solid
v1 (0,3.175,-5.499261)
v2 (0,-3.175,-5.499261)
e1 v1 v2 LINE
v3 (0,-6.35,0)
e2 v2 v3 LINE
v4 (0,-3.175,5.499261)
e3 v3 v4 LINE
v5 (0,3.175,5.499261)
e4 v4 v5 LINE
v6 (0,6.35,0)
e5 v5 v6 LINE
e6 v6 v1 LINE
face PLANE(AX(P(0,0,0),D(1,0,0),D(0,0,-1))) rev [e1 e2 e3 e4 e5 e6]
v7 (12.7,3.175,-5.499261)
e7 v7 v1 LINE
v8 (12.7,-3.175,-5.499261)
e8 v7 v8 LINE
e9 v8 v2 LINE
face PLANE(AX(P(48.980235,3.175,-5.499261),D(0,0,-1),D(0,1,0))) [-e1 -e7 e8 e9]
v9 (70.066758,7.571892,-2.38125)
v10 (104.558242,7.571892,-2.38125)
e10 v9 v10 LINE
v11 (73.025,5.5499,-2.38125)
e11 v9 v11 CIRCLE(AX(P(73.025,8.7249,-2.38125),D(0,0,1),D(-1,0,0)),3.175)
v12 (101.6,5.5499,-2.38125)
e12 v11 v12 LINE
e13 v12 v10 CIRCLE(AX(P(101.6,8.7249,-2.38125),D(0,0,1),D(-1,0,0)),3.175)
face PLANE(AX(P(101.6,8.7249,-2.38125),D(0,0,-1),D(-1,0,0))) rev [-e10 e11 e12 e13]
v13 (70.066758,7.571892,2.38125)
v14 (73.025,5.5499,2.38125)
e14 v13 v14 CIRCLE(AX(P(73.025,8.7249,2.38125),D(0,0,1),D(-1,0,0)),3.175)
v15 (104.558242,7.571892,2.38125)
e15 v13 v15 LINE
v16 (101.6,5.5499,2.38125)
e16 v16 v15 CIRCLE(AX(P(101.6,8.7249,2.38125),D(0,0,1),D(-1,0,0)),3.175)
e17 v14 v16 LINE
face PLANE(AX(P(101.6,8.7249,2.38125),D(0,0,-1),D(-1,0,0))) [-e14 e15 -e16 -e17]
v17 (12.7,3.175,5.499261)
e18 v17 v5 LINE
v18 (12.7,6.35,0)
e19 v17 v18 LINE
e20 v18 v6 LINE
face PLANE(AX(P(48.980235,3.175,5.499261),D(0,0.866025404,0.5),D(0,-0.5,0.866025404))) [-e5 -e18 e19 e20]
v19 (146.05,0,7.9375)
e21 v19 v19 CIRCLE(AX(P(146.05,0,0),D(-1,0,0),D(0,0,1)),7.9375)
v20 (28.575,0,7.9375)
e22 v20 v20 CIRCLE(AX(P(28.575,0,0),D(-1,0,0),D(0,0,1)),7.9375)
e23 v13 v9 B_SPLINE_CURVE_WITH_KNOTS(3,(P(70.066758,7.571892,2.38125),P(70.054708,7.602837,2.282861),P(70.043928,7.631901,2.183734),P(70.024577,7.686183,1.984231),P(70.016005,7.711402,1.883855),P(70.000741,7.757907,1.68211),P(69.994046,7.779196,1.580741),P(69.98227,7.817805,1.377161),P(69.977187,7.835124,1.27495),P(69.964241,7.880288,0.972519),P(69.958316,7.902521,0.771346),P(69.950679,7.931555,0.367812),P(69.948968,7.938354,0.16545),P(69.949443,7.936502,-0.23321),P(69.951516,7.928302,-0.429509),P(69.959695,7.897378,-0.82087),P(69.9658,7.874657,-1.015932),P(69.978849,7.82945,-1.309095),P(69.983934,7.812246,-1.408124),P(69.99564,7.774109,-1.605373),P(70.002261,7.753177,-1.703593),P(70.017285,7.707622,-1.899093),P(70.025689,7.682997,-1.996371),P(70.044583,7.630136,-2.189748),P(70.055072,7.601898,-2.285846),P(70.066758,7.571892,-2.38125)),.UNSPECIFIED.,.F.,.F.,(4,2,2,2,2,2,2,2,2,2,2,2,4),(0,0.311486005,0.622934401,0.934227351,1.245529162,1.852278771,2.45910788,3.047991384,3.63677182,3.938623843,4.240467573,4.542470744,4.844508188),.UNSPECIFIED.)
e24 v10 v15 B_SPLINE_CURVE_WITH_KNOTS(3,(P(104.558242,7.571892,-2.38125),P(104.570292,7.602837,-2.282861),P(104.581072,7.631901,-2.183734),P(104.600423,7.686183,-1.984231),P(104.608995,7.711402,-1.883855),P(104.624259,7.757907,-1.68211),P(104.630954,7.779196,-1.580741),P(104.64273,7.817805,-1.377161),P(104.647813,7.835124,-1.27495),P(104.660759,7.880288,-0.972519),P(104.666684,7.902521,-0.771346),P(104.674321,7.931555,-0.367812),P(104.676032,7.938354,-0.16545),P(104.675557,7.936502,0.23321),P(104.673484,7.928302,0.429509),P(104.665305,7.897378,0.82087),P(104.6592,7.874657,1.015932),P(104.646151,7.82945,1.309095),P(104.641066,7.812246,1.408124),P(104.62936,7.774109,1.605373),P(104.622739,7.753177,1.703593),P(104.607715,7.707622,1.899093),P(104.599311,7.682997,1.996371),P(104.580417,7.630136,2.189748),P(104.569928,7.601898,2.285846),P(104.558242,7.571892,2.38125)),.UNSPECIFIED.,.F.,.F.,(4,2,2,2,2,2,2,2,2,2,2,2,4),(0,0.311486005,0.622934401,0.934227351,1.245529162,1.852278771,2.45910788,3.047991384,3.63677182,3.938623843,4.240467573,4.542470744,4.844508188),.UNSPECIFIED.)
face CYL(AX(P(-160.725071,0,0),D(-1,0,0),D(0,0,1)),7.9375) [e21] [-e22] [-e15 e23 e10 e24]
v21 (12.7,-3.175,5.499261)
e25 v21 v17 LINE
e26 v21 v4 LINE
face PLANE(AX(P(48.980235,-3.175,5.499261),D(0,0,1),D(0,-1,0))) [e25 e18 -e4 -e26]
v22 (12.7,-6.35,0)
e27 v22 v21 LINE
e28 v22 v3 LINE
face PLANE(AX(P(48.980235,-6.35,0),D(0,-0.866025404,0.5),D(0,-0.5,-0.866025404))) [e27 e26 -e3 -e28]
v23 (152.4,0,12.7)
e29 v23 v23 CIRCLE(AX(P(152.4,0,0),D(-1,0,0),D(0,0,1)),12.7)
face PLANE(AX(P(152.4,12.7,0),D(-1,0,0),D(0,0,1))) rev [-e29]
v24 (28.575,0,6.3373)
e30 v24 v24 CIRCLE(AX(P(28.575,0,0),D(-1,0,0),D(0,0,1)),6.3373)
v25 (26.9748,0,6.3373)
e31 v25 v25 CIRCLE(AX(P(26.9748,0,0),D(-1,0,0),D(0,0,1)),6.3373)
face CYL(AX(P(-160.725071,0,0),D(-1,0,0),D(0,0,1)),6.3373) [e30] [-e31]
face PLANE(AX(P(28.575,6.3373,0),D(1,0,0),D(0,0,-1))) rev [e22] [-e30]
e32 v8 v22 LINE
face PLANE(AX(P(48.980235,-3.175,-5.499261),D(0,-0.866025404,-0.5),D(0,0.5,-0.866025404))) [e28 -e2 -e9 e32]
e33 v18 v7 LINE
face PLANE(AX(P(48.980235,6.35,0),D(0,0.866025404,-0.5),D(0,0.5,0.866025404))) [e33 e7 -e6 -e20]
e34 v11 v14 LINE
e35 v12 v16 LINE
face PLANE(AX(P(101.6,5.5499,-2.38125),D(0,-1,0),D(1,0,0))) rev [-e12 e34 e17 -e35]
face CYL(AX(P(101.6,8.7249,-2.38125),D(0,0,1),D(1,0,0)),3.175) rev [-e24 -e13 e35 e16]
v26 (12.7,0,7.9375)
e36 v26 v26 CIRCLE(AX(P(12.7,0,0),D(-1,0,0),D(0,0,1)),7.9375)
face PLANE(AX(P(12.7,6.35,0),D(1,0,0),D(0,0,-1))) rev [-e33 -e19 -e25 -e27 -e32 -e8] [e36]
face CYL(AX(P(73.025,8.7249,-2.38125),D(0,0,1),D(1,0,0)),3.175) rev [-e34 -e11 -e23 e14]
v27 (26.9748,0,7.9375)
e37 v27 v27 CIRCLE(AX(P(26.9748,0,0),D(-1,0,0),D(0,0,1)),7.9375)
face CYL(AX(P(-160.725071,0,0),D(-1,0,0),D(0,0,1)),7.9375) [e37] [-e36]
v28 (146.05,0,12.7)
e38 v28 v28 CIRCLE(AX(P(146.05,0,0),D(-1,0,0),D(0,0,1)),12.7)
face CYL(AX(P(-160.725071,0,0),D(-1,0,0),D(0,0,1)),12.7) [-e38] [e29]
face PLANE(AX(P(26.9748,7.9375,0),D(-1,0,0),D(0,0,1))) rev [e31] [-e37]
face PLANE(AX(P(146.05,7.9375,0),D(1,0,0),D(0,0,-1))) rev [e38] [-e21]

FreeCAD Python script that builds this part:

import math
import FreeCAD as App
import Part
import Sketcher
Q = App.Units.Quantity

doc = App.newDocument("Part")
params = doc.addObject("Spreadsheet::Sheet", "Params")
for row, (alias, value) in enumerate([
    ("sketch1_width", "6 in"),
    ("sketch1_width2", "0.5 in"),
    ("sketch1_width3", "0.25 in"),
    ("sketch1_width4", "4.625 in"),
    ("sketch1_width5", "0.063 in"),
    ("revolution_angle", "360 deg"),
    ("sketch2_radius", "0.125 in"),
    ("sketch2_width", "1.375 in"),
    ("sketch2_height", "0.219 in"),
    ("pocket1_length", "0.1875 in"),
    ("sketch3_width", "0.25 in"),
    ("pocket2_length", "0.5 in"),
], start=1):
    params.set(f"A{row}", alias)
    params.set(f"B{row}", "=" + value)
    params.setAlias(f"B{row}", alias)

body = doc.addObject("PartDesign::Body", "Body")

# Sketch on XY plane
sketch1 = body.newObject("Sketcher::SketchObject", "Sketch")
sketch1.AttachmentSupport = (doc.getObject("XY_Plane"), [""])
sketch1.MapMode = "FlatFace"
sketch1.addGeometry(Part.LineSegment(App.Vector(0, 6.3, 0), App.Vector(0, 0, 0)), False)
sketch1.addGeometry(Part.LineSegment(App.Vector(0, 0, 0), App.Vector(152.4, 0, 0)), False)
sketch1.addGeometry(Part.LineSegment(App.Vector(152.4, 0, 0), App.Vector(152.4, 12.7, 0)), False)
sketch1.addGeometry(Part.LineSegment(App.Vector(152.4, 12.7, 0), App.Vector(146.1, 12.7, 0)), False)
sketch1.addGeometry(Part.LineSegment(App.Vector(146.1, 12.7, 0), App.Vector(146.1, 7.9, 0)), False)
sketch1.addGeometry(Part.LineSegment(App.Vector(146.1, 7.9, 0), App.Vector(28.6, 7.9, 0)), False)
sketch1.addGeometry(Part.LineSegment(App.Vector(28.6, 7.9, 0), App.Vector(28.6, 6.3, 0)), False)
sketch1.addGeometry(Part.LineSegment(App.Vector(28.6, 6.3, 0), App.Vector(27, 6.3, 0)), False)
sketch1.addGeometry(Part.LineSegment(App.Vector(27, 6.3, 0), App.Vector(27, 7.9, 0)), False)
sketch1.addGeometry(Part.LineSegment(App.Vector(27, 7.9, 0), App.Vector(12.7, 7.9, 0)), False)
sketch1.addGeometry(Part.LineSegment(App.Vector(12.7, 7.9, 0), App.Vector(12.7, 6.3, 0)), False)
sketch1.addGeometry(Part.LineSegment(App.Vector(12.7, 6.3, 0), App.Vector(0, 6.3, 0)), False)
sketch1.addConstraint(Sketcher.Constraint("Coincident", 0, 2, 1, 1))
sketch1.addConstraint(Sketcher.Constraint("Coincident", 1, 2, 2, 1))
sketch1.addConstraint(Sketcher.Constraint("Coincident", 2, 2, 3, 1))
sketch1.addConstraint(Sketcher.Constraint("Coincident", 3, 2, 4, 1))
sketch1.addConstraint(Sketcher.Constraint("Coincident", 4, 2, 5, 1))
sketch1.addConstraint(Sketcher.Constraint("Coincident", 5, 2, 6, 1))
sketch1.addConstraint(Sketcher.Constraint("Coincident", 6, 2, 7, 1))
sketch1.addConstraint(Sketcher.Constraint("Coincident", 7, 2, 8, 1))
sketch1.addConstraint(Sketcher.Constraint("Coincident", 8, 2, 9, 1))
sketch1.addConstraint(Sketcher.Constraint("Coincident", 9, 2, 10, 1))
sketch1.addConstraint(Sketcher.Constraint("Coincident", 10, 2, 11, 1))
sketch1.addConstraint(Sketcher.Constraint("Coincident", 11, 2, 0, 1))
sketch1.addConstraint(Sketcher.Constraint("Vertical", 0))
sketch1.addConstraint(Sketcher.Constraint("Horizontal", 1))
sketch1.addConstraint(Sketcher.Constraint("Vertical", 2))
sketch1.addConstraint(Sketcher.Constraint("Horizontal", 3))
sketch1.addConstraint(Sketcher.Constraint("Vertical", 4))
sketch1.addConstraint(Sketcher.Constraint("Horizontal", 5))
sketch1.addConstraint(Sketcher.Constraint("Vertical", 6))
sketch1.addConstraint(Sketcher.Constraint("Horizontal", 7))
sketch1.addConstraint(Sketcher.Constraint("Vertical", 8))
sketch1.addConstraint(Sketcher.Constraint("Horizontal", 9))
sketch1.addConstraint(Sketcher.Constraint("Vertical", 10))
sketch1.addConstraint(Sketcher.Constraint("Horizontal", 11))
sketch1.addConstraint(Sketcher.Constraint("Coincident", 0, 2, -1, 1))
sketch1.addConstraint(Sketcher.Constraint("Horizontal", 5, 2, 8, 2))
sketch1.addConstraint(Sketcher.Constraint("Equal", 3, 0))
sketch1.addConstraint(Sketcher.Constraint("Equal", 11, 2))
sketch1.addConstraint(Sketcher.Constraint("Equal", 7, 6))
sketch1.addConstraint(Sketcher.Constraint("DistanceX", 1, 1, 1, 2, Q("6 in")))
sketch1.addConstraint(Sketcher.Constraint("DistanceX", 11, 2, 11, 1, Q("0.5 in")))
sketch1.addConstraint(Sketcher.Constraint("DistanceX", 3, 2, 3, 1, Q("0.25 in")))
sketch1.addConstraint(Sketcher.Constraint("DistanceX", 5, 2, 5, 1, Q("4.625 in")))
sketch1.addConstraint(Sketcher.Constraint("DistanceX", 7, 2, 7, 1, Q("0.063 in")))
sketch1.addConstraint(Sketcher.Constraint("DistanceY", 4, 2, 4, 1, Q("0.1875 in")))
sketch1.setExpression("Constraints[29]", "Params.sketch1_width")
sketch1.setExpression("Constraints[30]", "Params.sketch1_width2")
sketch1.setExpression("Constraints[31]", "Params.sketch1_width3")
sketch1.setExpression("Constraints[32]", "Params.sketch1_width4")
sketch1.setExpression("Constraints[33]", "Params.sketch1_width5")
revolution = body.newObject("PartDesign::Revolution", "Revolution")
revolution.Profile = sketch1
revolution.ReferenceAxis = (sketch1, ["H_Axis"])
revolution.setExpression("Angle", "Params.revolution_angle")

# Sketch on XY plane
sketch2 = body.newObject("Sketcher::SketchObject", "Sketch001")
sketch2.AttachmentSupport = (doc.getObject("XY_Plane"), [""])
sketch2.MapMode = "FlatFace"
sketch2.addGeometry(Part.LineSegment(App.Vector(104.8, 14.3, 0), App.Vector(69.8, 14.3, 0)), False)
sketch2.addGeometry(Part.LineSegment(App.Vector(69.8, 14.3, 0), App.Vector(69.8, 8.7, 0)), False)
sketch2.addGeometry(Part.ArcOfCircle(Part.Circle(App.Vector(73, 8.7, 0), App.Vector(0, 0, 1), 3.2), math.radians(-180), math.radians(-90)), False)
sketch2.addGeometry(Part.LineSegment(App.Vector(73, 5.5, 0), App.Vector(101.6, 5.5, 0)), False)
sketch2.addGeometry(Part.ArcOfCircle(Part.Circle(App.Vector(101.6, 8.7, 0), App.Vector(0, 0, 1), 3.2), math.radians(-90), math.radians(0)), False)
sketch2.addGeometry(Part.LineSegment(App.Vector(104.8, 8.7, 0), App.Vector(104.8, 14.3, 0)), False)
sketch2.addConstraint(Sketcher.Constraint("Coincident", 0, 2, 1, 1))
sketch2.addConstraint(Sketcher.Constraint("Tangent", 1, 2, 2, 1))
sketch2.addConstraint(Sketcher.Constraint("Tangent", 2, 2, 3, 1))
sketch2.addConstraint(Sketcher.Constraint("Tangent", 3, 2, 4, 1))
sketch2.addConstraint(Sketcher.Constraint("Tangent", 4, 2, 5, 1))
sketch2.addConstraint(Sketcher.Constraint("Coincident", 5, 2, 0, 1))
sketch2.addConstraint(Sketcher.Constraint("Horizontal", 0))
sketch2.addConstraint(Sketcher.Constraint("Vertical", 1))
sketch2.addConstraint(Sketcher.Constraint("Horizontal", 3))
sketch2.addConstraint(Sketcher.Constraint("Vertical", 5))
sketch2.addConstraint(Sketcher.Constraint("Equal", 2, 4))
sketch2.addConstraint(Sketcher.Constraint("DistanceX", -1, 1, 4, 3, Q("4 in")))
sketch2.addConstraint(Sketcher.Constraint("Radius", 2, Q("0.125 in")))
sketch2.addConstraint(Sketcher.Constraint("DistanceX", 0, 2, 0, 1, Q("1.375 in")))
sketch2.addConstraint(Sketcher.Constraint("DistanceY", 1, 2, 1, 1, Q("0.219 in")))
sketch2.addConstraint(Sketcher.Constraint("DistanceY", -1, 1, 0, 2, Q("0.5625 in")))
sketch2.setExpression("Constraints[12]", "Params.sketch2_radius")
sketch2.setExpression("Constraints[13]", "Params.sketch2_width")
sketch2.setExpression("Constraints[14]", "Params.sketch2_height")
pocket1 = body.newObject("PartDesign::Pocket", "Pocket")
pocket1.Profile = sketch2
pocket1.setExpression("Length", "Params.pocket1_length")
pocket1.Midplane = True

# Sketch on YZ plane
sketch3 = body.newObject("Sketcher::SketchObject", "Sketch002")
sketch3.AttachmentSupport = (doc.getObject("YZ_Plane"), [""])
sketch3.MapMode = "FlatFace"
sketch3.addGeometry(Part.LineSegment(App.Vector(29, -29, 0), App.Vector(-29, -29, 0)), False)
sketch3.addGeometry(Part.LineSegment(App.Vector(-29, -29, 0), App.Vector(-29, 29, 0)), False)
sketch3.addGeometry(Part.LineSegment(App.Vector(-29, 29, 0), App.Vector(29, 29, 0)), False)
sketch3.addGeometry(Part.LineSegment(App.Vector(29, 29, 0), App.Vector(29, -29, 0)), False)
sketch3.addGeometry(Part.LineSegment(App.Vector(3, -5, 0), App.Vector(6, 0, 0)), False)
sketch3.addGeometry(Part.LineSegment(App.Vector(6, 0, 0), App.Vector(3, 5, 0)), False)
sketch3.addGeometry(Part.LineSegment(App.Vector(3, 5, 0), App.Vector(-3, 5, 0)), False)
sketch3.addGeometry(Part.LineSegment(App.Vector(-3, 5, 0), App.Vector(-6, 0, 0)), False)
sketch3.addGeometry(Part.LineSegment(App.Vector(-6, 0, 0), App.Vector(-3, -5, 0)), False)
sketch3.addGeometry(Part.LineSegment(App.Vector(-3, -5, 0), App.Vector(3, -5, 0)), False)
sketch3.addConstraint(Sketcher.Constraint("Coincident", 0, 2, 1, 1))
sketch3.addConstraint(Sketcher.Constraint("Coincident", 1, 2, 2, 1))
sketch3.addConstraint(Sketcher.Constraint("Coincident", 2, 2, 3, 1))
sketch3.addConstraint(Sketcher.Constraint("Coincident", 3, 2, 0, 1))
sketch3.addConstraint(Sketcher.Constraint("Coincident", 4, 2, 5, 1))
sketch3.addConstraint(Sketcher.Constraint("Coincident", 5, 2, 6, 1))
sketch3.addConstraint(Sketcher.Constraint("Coincident", 6, 2, 7, 1))
sketch3.addConstraint(Sketcher.Constraint("Coincident", 7, 2, 8, 1))
sketch3.addConstraint(Sketcher.Constraint("Coincident", 8, 2, 9, 1))
sketch3.addConstraint(Sketcher.Constraint("Coincident", 9, 2, 4, 1))
sketch3.addConstraint(Sketcher.Constraint("Horizontal", 0))
sketch3.addConstraint(Sketcher.Constraint("Vertical", 1))
sketch3.addConstraint(Sketcher.Constraint("Horizontal", 2))
sketch3.addConstraint(Sketcher.Constraint("Vertical", 3))
sketch3.addConstraint(Sketcher.Constraint("Horizontal", 6))
sketch3.addConstraint(Sketcher.Constraint("Horizontal", 9))
sketch3.addConstraint(Sketcher.Constraint("Symmetric", 0, 2, 2, 2, -1, 1))
sketch3.addConstraint(Sketcher.Constraint("Symmetric", 4, 2, 7, 2, -1, 1))
sketch3.addConstraint(Sketcher.Constraint("Symmetric", 5, 2, 8, 2, -1, 1))
sketch3.addConstraint(Sketcher.Constraint("PointOnObject", 4, 2, -1))
sketch3.addConstraint(Sketcher.Constraint("Parallel", 4, 7))
sketch3.addConstraint(Sketcher.Constraint("Vertical", 6, 2, 8, 2))
sketch3.addConstraint(Sketcher.Constraint("Equal", 2, 1))
sketch3.addConstraint(Sketcher.Constraint("Angle", 4, Q("60 deg")))
sketch3.addConstraint(Sketcher.Constraint("DistanceX", 6, 2, 6, 1, Q("0.25 in")))
sketch3.addConstraint(Sketcher.Constraint("DistanceX", 7, 2, 4, 2, Q("0.5 in")))
sketch3.addConstraint(Sketcher.Constraint("DistanceX", 0, 2, 0, 1, Q("58.716 mm")))
sketch3.setExpression("Constraints[24]", "Params.sketch3_width")
pocket2 = body.newObject("PartDesign::Pocket", "Pocket001")
pocket2.Profile = sketch3
pocket2.setExpression("Length", "Params.pocket2_length")
pocket2.Reversed = True

doc.recompute()
